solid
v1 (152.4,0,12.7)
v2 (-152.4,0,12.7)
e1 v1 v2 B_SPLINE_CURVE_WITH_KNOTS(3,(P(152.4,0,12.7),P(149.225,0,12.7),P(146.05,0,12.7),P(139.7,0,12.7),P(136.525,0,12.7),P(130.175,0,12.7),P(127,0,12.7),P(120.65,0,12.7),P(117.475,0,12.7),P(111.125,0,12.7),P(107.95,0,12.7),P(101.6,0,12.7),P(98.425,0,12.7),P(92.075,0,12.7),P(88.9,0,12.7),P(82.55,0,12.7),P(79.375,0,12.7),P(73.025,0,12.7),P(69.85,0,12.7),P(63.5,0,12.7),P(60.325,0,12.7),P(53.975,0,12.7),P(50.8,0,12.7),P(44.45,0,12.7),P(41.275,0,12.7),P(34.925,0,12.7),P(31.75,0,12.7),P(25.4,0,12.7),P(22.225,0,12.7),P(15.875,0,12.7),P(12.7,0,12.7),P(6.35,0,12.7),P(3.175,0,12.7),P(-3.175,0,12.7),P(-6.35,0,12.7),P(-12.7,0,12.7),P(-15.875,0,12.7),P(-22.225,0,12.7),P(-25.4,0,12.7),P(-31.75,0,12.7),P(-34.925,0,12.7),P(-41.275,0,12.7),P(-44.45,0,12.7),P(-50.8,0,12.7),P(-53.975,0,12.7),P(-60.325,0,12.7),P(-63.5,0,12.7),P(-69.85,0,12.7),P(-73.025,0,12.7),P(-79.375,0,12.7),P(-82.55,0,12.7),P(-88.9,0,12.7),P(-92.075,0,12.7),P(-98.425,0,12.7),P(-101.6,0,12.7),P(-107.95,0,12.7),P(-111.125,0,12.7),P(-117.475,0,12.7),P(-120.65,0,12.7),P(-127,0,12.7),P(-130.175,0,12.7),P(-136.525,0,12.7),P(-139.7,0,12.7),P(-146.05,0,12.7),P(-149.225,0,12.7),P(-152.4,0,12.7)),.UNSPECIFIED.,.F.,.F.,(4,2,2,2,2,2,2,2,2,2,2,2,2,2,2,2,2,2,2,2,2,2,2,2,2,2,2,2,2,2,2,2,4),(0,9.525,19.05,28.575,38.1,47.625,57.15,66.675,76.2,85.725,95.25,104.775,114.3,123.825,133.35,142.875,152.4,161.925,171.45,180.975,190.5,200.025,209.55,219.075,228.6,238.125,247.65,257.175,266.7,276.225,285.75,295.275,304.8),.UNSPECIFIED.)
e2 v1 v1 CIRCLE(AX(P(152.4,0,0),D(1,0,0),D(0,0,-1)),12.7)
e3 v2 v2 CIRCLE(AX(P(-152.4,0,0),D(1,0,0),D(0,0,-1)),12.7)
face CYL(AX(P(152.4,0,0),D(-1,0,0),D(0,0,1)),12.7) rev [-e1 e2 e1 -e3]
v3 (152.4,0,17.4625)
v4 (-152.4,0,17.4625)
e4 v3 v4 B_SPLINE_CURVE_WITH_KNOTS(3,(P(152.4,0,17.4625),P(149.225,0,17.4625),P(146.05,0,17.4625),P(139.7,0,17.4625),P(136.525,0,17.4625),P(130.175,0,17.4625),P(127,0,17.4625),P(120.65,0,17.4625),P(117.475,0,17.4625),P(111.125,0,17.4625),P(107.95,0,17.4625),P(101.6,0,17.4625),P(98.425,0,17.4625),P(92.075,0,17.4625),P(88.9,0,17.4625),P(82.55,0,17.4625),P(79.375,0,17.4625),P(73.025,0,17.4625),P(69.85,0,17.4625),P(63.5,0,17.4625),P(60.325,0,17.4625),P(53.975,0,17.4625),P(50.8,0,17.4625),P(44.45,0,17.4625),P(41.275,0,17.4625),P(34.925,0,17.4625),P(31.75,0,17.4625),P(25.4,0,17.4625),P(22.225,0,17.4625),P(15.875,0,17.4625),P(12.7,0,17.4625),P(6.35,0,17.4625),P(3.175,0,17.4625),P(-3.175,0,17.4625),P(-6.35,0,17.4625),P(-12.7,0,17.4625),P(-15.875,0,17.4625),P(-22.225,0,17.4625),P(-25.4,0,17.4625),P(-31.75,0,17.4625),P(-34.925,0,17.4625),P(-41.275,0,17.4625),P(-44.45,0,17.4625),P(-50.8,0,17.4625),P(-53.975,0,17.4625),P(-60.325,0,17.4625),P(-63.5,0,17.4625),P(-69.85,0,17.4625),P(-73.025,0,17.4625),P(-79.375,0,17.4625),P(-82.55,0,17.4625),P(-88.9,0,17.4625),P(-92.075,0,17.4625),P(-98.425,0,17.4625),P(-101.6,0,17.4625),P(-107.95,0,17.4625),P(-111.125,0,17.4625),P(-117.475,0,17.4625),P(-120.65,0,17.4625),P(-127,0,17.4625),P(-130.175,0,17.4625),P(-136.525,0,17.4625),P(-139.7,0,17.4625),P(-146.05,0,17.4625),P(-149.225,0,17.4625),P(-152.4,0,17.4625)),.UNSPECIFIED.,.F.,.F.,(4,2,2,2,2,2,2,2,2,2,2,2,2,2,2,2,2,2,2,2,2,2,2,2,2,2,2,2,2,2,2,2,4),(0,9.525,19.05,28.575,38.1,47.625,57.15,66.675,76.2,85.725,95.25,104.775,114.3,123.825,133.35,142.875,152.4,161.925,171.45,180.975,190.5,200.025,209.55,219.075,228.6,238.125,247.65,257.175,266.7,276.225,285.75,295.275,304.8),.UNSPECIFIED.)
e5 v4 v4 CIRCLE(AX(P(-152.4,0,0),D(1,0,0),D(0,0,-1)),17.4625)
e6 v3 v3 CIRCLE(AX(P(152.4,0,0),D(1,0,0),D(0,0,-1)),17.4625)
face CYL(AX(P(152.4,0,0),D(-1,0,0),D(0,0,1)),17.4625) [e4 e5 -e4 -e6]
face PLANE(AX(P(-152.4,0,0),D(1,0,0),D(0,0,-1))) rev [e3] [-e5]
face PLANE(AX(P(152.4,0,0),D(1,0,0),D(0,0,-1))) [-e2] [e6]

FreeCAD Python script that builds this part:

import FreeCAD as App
import Part
import Sketcher

V = App.Vector
Q = App.Units.Quantity

doc = App.newDocument("Part")
params = doc.addObject("Spreadsheet::Sheet", "Params")
for row, (alias, value) in enumerate([
    ("sketch1_diameter", "1 in"),
    ("sketch1_diameter2", "1.375 in"),
    ("pad1_length", "12 in"),
], start=1):
    params.set(f"A{row}", alias)
    params.set(f"B{row}", "=" + value)
    params.setAlias(f"B{row}", alias)

body = doc.addObject("PartDesign::Body", "Body")

# Sketch on YZ plane
sketch1 = doc.addObject("Sketcher::SketchObject", "Sketch")
body.addObject(sketch1)
sketch1.AttachmentSupport = (doc.YZ_Plane, [""])
sketch1.MapMode = "FlatFace"
sketch1.addGeometry([
    Part.Circle(V(0, 0, 0), V(0, 0, 1), 17),
    Part.Circle(V(0, 0, 0), V(0, 0, 1), 13),
], False)
sketch1.addConstraint([
    Sketcher.Constraint("Coincident", 0, 3, -1, 1),
    Sketcher.Constraint("Coincident", 1, 3, -1, 1),
    Sketcher.Constraint("Diameter", 1, Q("1 in")),
    Sketcher.Constraint("Diameter", 0, Q("1.375 in")),
])
sketch1.setExpression("Constraints[2]", "Params.sketch1_diameter")
sketch1.setExpression("Constraints[3]", "Params.sketch1_diameter2")
pad1 = doc.addObject("PartDesign::Pad", "Pad")
body.addObject(pad1)
pad1.Profile = sketch1
pad1.setExpression("Length", "Params.pad1_length")
pad1.Midplane = True

doc.recompute()
